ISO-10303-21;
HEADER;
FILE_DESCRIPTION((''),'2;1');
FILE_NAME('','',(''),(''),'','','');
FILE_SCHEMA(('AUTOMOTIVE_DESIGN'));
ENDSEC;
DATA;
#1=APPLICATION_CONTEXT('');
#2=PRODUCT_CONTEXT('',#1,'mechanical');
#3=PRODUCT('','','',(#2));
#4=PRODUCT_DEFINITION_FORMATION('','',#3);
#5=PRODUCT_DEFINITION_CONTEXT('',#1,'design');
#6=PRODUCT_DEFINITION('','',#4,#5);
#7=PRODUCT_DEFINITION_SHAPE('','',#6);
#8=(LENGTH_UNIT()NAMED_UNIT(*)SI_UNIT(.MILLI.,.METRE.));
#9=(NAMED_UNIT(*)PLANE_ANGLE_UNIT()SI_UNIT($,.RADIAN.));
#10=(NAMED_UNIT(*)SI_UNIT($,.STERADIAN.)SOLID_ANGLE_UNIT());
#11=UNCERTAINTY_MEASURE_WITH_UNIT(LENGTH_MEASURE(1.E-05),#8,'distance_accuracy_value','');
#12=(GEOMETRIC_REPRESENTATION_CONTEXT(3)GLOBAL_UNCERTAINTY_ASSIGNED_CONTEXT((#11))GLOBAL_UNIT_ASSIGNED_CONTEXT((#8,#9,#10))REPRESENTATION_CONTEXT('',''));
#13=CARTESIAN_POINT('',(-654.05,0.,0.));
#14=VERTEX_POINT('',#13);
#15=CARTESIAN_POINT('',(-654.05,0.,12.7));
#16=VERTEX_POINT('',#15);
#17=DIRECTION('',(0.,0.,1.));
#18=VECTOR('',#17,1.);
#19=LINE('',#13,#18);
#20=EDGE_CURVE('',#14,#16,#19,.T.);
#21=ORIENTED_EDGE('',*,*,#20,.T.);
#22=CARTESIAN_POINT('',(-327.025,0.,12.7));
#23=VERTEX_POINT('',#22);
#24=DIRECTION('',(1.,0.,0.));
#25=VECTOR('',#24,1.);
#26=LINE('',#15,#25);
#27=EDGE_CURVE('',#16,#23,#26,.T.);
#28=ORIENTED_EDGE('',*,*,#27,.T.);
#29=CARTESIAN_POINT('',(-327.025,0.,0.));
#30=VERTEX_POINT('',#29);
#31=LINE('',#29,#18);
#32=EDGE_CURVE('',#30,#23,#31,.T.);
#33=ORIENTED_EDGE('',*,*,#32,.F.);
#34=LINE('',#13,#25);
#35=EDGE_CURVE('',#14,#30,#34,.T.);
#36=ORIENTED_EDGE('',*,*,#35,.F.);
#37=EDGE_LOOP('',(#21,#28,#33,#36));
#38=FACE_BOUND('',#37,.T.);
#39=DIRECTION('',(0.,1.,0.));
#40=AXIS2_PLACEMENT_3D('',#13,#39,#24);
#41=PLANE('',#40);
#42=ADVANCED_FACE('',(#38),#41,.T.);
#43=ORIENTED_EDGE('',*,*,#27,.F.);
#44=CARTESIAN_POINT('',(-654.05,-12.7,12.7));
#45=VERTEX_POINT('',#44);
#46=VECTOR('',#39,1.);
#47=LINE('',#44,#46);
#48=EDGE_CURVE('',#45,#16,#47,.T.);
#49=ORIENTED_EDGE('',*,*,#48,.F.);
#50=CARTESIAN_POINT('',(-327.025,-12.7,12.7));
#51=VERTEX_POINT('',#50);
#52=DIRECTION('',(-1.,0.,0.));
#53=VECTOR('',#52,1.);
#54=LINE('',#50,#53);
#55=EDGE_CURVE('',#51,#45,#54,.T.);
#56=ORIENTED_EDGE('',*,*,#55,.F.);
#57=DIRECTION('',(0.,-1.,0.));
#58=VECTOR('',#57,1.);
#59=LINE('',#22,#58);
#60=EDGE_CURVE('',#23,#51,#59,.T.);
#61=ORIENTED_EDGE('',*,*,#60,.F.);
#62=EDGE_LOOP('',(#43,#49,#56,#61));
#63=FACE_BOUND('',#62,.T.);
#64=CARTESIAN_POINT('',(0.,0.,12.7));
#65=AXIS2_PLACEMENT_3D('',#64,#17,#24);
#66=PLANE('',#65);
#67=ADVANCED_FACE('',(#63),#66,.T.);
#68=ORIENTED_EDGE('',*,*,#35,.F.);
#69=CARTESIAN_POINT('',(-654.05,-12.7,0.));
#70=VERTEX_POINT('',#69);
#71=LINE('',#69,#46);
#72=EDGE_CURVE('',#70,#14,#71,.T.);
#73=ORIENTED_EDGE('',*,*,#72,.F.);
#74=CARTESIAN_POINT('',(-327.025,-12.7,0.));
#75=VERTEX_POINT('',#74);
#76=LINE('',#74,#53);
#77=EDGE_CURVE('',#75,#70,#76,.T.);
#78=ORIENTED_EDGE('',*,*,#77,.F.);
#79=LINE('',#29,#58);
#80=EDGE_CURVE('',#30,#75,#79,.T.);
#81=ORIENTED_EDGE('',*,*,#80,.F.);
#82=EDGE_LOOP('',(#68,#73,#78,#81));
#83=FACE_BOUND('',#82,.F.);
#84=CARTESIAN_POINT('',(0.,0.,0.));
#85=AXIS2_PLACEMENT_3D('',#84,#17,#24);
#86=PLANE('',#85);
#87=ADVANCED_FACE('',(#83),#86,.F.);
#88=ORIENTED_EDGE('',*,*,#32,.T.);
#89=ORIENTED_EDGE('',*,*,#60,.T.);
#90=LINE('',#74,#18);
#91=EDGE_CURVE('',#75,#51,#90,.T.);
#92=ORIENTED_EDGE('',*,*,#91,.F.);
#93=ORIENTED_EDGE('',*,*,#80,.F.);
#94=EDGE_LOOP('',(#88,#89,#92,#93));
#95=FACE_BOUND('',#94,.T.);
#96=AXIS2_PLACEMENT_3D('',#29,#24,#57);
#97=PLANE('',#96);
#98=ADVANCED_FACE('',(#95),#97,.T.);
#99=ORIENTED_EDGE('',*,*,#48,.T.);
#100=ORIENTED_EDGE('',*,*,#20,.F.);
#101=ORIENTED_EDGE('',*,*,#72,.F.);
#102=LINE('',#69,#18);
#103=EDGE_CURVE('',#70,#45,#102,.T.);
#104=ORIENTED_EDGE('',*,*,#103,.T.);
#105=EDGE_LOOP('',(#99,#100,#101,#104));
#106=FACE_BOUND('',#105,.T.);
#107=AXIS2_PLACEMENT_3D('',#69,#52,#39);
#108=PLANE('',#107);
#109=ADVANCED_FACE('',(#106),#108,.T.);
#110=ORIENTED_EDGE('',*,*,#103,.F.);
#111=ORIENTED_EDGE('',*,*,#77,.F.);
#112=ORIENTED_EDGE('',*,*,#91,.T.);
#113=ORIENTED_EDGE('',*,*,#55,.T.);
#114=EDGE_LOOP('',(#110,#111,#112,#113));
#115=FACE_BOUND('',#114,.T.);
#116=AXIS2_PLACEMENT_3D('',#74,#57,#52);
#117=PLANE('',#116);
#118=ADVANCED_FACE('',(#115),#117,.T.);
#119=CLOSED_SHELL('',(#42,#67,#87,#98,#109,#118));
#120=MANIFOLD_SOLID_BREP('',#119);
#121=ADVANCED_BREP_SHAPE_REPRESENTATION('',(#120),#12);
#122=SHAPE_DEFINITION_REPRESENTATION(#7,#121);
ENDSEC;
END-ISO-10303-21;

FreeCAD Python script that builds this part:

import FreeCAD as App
import Part
import Sketcher

V = App.Vector
Q = App.Units.Quantity


def add_polygon(sketch, points):
    """Adds a closed chain of lines whose ends are joined by coincident constraints."""
    first, n = sketch.GeometryCount, len(points)
    for a, b in zip(points, points[1:] + points[:1]):
        sketch.addGeometry(Part.LineSegment(App.Vector(*a, 0), App.Vector(*b, 0)), False)
    for i in range(n):
        sketch.addConstraint(Sketcher.Constraint("Coincident", first + i, 2, first + (i + 1) % n, 1))

doc = App.newDocument("Part")
body = doc.addObject("PartDesign::Body", "Body")

# Sketch on XY plane
sketch1 = body.newObject("Sketcher::SketchObject", "Sketch")
sketch1.AttachmentSupport = (doc.getObject("XY_Plane"), [""])
sketch1.MapMode = "FlatFace"
add_polygon(sketch1, [(-327, 0), (-654, 0), (-654, -13), (-327, -13)])  # lines 0-3
sketch1.addConstraint([
    Sketcher.Constraint("Horizontal", 0),
    Sketcher.Constraint("Vertical", 1),
    Sketcher.Constraint("Horizontal", 2),
    Sketcher.Constraint("Vertical", 3),
    Sketcher.Constraint("PointOnObject", 0, 2, -1),
    Sketcher.Constraint("DistanceY", 1, 2, 1, 1, Q("0.5 in")),
    Sketcher.Constraint("DistanceX", 0, 2, 0, 1, Q("12.875 in")),
    Sketcher.Constraint("DistanceX", 0, 2, -1, 1, Q("25.75 in")),
])
pad1 = body.newObject("PartDesign::Pad", "Pad")
pad1.Profile = sketch1
pad1.Length = Q("0.5 in")

doc.recompute()
